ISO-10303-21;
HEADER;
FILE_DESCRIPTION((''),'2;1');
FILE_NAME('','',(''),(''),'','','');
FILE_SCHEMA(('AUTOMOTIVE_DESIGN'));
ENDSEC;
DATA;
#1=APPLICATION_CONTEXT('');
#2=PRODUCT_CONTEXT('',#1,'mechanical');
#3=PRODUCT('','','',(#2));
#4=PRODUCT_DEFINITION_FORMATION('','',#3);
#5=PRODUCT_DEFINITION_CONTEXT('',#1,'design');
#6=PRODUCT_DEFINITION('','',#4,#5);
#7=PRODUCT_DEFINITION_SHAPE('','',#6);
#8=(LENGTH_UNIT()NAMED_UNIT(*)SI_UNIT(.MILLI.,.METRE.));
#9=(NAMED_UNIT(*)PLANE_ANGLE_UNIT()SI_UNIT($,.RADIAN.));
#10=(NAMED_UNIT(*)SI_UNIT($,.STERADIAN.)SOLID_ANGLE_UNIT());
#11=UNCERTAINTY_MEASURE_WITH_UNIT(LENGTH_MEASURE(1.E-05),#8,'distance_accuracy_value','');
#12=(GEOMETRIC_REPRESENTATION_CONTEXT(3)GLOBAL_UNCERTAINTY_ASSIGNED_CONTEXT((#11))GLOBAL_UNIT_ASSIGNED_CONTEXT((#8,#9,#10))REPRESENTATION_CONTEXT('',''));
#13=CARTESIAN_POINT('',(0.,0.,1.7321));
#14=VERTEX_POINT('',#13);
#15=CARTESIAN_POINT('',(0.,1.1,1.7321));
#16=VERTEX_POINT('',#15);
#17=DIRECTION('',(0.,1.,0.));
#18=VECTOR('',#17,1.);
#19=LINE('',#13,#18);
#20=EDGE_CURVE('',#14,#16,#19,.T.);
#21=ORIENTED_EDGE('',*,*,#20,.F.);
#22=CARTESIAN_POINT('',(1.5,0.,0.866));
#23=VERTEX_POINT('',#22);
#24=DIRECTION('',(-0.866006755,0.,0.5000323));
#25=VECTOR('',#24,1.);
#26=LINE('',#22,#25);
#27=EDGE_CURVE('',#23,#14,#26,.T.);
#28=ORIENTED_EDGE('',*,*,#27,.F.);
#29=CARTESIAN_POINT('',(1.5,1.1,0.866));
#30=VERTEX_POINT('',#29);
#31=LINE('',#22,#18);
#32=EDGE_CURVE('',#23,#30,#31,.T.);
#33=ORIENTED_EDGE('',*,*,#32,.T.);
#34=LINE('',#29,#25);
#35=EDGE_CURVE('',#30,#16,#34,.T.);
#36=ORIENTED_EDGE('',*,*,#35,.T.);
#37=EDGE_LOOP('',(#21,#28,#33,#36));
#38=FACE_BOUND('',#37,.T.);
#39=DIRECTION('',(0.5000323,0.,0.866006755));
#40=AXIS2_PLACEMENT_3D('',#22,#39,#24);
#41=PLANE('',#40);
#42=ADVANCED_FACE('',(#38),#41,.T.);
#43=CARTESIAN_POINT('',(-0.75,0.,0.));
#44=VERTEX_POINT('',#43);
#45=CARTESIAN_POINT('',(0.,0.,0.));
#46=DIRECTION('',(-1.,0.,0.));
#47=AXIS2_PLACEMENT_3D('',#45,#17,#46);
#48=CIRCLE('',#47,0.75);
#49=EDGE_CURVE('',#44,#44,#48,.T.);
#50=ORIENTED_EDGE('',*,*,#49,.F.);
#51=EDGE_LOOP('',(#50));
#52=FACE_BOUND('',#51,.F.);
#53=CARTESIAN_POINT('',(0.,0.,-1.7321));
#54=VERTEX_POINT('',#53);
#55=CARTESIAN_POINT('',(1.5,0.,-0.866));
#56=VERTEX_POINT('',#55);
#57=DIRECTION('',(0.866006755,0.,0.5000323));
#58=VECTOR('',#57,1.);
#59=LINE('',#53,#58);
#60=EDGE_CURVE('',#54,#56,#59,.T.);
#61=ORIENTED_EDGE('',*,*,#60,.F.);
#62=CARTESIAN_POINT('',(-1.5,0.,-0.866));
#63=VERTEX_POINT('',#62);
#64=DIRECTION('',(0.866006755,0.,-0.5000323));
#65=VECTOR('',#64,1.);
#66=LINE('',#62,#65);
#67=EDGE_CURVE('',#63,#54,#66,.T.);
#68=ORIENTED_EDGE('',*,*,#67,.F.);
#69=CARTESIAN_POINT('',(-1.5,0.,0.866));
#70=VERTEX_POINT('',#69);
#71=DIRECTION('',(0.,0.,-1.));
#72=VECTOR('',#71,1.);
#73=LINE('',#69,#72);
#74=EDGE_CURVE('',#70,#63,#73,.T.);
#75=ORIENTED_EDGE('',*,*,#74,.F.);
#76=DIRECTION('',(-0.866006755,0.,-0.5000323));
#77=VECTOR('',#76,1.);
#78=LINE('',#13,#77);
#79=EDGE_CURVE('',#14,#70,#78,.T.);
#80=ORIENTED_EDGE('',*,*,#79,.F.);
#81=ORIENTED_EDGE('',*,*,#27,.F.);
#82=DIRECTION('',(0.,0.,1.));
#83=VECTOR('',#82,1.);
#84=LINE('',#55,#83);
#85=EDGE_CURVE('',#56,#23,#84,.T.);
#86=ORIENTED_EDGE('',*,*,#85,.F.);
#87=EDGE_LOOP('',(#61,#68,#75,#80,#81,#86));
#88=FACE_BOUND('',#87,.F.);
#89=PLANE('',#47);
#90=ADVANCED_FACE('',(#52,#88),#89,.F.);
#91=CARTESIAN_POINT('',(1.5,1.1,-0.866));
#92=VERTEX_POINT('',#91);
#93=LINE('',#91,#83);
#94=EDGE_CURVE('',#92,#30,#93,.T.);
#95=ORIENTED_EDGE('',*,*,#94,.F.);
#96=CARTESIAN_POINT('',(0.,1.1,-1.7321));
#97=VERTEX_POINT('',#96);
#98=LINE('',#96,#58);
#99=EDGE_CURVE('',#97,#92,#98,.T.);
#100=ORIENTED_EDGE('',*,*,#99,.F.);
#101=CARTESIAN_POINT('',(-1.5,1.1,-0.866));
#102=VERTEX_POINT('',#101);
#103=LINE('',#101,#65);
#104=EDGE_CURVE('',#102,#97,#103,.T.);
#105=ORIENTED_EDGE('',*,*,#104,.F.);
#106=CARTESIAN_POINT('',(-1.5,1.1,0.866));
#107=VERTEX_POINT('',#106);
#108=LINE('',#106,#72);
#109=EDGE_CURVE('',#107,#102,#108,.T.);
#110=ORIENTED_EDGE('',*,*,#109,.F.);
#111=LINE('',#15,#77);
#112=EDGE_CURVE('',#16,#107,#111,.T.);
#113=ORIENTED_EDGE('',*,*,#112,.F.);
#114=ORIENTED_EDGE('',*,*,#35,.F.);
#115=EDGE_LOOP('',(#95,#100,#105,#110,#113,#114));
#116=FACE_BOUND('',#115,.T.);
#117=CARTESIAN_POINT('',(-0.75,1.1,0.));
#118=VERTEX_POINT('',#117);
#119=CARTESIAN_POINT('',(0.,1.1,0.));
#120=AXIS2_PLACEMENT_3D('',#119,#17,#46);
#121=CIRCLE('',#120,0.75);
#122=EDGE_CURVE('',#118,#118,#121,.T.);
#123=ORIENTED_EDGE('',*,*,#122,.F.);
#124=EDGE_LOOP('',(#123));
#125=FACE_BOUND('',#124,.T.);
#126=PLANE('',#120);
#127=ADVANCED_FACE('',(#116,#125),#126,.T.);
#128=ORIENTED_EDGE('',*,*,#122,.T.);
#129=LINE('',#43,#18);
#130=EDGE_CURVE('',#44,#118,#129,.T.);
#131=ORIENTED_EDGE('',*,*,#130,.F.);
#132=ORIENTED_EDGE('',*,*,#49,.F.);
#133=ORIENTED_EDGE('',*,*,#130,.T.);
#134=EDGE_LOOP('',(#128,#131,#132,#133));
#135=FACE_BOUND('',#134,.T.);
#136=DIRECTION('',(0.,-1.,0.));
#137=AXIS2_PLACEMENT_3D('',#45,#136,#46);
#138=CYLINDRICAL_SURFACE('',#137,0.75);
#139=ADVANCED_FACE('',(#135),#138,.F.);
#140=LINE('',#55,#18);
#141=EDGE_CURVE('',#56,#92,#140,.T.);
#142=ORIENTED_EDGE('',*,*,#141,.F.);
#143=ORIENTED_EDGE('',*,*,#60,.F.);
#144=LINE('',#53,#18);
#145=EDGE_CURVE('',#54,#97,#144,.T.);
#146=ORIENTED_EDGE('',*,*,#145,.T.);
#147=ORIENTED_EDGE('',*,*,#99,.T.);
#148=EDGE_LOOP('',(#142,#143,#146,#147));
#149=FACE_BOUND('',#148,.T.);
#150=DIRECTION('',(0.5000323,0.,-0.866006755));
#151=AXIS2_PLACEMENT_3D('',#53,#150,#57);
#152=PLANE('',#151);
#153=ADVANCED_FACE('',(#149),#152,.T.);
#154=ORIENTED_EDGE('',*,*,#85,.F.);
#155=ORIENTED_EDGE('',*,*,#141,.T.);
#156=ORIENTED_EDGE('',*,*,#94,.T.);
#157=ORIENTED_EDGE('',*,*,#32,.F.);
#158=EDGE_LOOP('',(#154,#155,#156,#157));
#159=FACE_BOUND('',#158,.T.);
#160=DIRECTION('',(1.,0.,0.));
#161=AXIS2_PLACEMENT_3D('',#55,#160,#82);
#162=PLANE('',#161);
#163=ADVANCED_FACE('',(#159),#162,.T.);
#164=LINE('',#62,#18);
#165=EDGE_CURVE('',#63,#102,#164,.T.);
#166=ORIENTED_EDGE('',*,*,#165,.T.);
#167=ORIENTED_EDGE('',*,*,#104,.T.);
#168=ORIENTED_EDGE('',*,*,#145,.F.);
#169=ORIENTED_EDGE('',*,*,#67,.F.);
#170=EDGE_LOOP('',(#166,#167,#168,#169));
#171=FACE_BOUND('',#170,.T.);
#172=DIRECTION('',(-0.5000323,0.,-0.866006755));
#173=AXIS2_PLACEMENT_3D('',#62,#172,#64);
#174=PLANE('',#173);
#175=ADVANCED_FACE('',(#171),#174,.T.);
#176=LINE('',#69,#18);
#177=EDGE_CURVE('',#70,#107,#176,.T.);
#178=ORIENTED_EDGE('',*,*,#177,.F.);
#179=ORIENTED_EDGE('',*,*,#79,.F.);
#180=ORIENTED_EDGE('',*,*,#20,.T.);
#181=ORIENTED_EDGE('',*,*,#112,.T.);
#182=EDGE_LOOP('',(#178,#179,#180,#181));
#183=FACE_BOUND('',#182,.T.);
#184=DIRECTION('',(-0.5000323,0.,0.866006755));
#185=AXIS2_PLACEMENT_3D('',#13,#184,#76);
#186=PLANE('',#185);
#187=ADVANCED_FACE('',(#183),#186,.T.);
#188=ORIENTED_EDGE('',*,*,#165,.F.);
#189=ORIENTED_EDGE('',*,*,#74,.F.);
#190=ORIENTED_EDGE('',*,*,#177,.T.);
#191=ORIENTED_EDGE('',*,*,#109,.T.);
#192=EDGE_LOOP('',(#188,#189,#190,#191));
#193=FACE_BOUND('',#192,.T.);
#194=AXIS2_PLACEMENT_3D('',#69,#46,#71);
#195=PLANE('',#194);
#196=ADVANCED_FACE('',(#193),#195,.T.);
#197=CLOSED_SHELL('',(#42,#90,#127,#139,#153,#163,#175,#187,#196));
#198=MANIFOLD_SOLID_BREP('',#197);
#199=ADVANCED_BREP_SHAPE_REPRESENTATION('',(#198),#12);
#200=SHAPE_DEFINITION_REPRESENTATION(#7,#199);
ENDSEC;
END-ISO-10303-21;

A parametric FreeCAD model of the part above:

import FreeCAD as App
import Part
import Sketcher

V = App.Vector


def add_polygon(sketch, points):
    """Adds a closed chain of lines whose ends are joined by coincident constraints."""
    first, n = sketch.GeometryCount, len(points)
    for a, b in zip(points, points[1:] + points[:1]):
        sketch.addGeometry(Part.LineSegment(App.Vector(*a, 0), App.Vector(*b, 0)), False)
    for i in range(n):
        sketch.addConstraint(Sketcher.Constraint("Coincident", first + i, 2, first + (i + 1) % n, 1))

doc = App.newDocument("Part")
params = doc.addObject("Spreadsheet::Sheet", "Params")
for row, (alias, value) in enumerate([
    ("sketch1_diameter", "1.5 mm"),
    ("pad1_length", "1.1 mm"),
], start=1):
    params.set(f"A{row}", alias)
    params.set(f"B{row}", "=" + value)
    params.setAlias(f"B{row}", alias)

body = doc.addObject("PartDesign::Body", "Body")

# Sketch on XZ plane
sketch1 = body.newObject("Sketcher::SketchObject", "Sketch")
sketch1.AttachmentSupport = (doc.getObject("XZ_Plane"), [""])
sketch1.MapMode = "FlatFace"
add_polygon(sketch1, [(1.5, 0.866), (1.5, -0.866), (0, -1.7321), (-1.5, -0.866), (-1.5, 0.866), (0, 1.7321)])  # lines 0-5
sketch1.addGeometry(Part.Circle(V(0, 0, 0), V(0, 0, 1), 0.75), False)  # 6
sketch1.addConstraint([
    Sketcher.Constraint("Vertical", 0),
    Sketcher.Constraint("Vertical", 3),
    Sketcher.Constraint("Coincident", 6, 3, -1, 1),
    Sketcher.Constraint("Symmetric", 0, 2, 3, 2, -1, 1),
    Sketcher.Constraint("Symmetric", 1, 2, 4, 2, -1, 1),
    Sketcher.Constraint("PointOnObject", 1, 2, -2),
    Sketcher.Constraint("Parallel", 2, 5),
    Sketcher.Constraint("Horizontal", 0, 2, 2, 2),
    Sketcher.Constraint("Diameter", 6, 1.5),
    Sketcher.Constraint("DistanceX", 2, 2, 0, 2, 3.0),
    Sketcher.Constraint("DistanceY", 0, 2, 0, 1, 1.732),
    Sketcher.Constraint("Distance", 1, 1.732),
])
sketch1.setExpression("Constraints[14]", "Params.sketch1_diameter")
pad1 = body.newObject("PartDesign::Pad", "Pad")
pad1.Profile = sketch1
pad1.setExpression("Length", "Params.pad1_length")
pad1.Reversed = True

doc.recompute()
